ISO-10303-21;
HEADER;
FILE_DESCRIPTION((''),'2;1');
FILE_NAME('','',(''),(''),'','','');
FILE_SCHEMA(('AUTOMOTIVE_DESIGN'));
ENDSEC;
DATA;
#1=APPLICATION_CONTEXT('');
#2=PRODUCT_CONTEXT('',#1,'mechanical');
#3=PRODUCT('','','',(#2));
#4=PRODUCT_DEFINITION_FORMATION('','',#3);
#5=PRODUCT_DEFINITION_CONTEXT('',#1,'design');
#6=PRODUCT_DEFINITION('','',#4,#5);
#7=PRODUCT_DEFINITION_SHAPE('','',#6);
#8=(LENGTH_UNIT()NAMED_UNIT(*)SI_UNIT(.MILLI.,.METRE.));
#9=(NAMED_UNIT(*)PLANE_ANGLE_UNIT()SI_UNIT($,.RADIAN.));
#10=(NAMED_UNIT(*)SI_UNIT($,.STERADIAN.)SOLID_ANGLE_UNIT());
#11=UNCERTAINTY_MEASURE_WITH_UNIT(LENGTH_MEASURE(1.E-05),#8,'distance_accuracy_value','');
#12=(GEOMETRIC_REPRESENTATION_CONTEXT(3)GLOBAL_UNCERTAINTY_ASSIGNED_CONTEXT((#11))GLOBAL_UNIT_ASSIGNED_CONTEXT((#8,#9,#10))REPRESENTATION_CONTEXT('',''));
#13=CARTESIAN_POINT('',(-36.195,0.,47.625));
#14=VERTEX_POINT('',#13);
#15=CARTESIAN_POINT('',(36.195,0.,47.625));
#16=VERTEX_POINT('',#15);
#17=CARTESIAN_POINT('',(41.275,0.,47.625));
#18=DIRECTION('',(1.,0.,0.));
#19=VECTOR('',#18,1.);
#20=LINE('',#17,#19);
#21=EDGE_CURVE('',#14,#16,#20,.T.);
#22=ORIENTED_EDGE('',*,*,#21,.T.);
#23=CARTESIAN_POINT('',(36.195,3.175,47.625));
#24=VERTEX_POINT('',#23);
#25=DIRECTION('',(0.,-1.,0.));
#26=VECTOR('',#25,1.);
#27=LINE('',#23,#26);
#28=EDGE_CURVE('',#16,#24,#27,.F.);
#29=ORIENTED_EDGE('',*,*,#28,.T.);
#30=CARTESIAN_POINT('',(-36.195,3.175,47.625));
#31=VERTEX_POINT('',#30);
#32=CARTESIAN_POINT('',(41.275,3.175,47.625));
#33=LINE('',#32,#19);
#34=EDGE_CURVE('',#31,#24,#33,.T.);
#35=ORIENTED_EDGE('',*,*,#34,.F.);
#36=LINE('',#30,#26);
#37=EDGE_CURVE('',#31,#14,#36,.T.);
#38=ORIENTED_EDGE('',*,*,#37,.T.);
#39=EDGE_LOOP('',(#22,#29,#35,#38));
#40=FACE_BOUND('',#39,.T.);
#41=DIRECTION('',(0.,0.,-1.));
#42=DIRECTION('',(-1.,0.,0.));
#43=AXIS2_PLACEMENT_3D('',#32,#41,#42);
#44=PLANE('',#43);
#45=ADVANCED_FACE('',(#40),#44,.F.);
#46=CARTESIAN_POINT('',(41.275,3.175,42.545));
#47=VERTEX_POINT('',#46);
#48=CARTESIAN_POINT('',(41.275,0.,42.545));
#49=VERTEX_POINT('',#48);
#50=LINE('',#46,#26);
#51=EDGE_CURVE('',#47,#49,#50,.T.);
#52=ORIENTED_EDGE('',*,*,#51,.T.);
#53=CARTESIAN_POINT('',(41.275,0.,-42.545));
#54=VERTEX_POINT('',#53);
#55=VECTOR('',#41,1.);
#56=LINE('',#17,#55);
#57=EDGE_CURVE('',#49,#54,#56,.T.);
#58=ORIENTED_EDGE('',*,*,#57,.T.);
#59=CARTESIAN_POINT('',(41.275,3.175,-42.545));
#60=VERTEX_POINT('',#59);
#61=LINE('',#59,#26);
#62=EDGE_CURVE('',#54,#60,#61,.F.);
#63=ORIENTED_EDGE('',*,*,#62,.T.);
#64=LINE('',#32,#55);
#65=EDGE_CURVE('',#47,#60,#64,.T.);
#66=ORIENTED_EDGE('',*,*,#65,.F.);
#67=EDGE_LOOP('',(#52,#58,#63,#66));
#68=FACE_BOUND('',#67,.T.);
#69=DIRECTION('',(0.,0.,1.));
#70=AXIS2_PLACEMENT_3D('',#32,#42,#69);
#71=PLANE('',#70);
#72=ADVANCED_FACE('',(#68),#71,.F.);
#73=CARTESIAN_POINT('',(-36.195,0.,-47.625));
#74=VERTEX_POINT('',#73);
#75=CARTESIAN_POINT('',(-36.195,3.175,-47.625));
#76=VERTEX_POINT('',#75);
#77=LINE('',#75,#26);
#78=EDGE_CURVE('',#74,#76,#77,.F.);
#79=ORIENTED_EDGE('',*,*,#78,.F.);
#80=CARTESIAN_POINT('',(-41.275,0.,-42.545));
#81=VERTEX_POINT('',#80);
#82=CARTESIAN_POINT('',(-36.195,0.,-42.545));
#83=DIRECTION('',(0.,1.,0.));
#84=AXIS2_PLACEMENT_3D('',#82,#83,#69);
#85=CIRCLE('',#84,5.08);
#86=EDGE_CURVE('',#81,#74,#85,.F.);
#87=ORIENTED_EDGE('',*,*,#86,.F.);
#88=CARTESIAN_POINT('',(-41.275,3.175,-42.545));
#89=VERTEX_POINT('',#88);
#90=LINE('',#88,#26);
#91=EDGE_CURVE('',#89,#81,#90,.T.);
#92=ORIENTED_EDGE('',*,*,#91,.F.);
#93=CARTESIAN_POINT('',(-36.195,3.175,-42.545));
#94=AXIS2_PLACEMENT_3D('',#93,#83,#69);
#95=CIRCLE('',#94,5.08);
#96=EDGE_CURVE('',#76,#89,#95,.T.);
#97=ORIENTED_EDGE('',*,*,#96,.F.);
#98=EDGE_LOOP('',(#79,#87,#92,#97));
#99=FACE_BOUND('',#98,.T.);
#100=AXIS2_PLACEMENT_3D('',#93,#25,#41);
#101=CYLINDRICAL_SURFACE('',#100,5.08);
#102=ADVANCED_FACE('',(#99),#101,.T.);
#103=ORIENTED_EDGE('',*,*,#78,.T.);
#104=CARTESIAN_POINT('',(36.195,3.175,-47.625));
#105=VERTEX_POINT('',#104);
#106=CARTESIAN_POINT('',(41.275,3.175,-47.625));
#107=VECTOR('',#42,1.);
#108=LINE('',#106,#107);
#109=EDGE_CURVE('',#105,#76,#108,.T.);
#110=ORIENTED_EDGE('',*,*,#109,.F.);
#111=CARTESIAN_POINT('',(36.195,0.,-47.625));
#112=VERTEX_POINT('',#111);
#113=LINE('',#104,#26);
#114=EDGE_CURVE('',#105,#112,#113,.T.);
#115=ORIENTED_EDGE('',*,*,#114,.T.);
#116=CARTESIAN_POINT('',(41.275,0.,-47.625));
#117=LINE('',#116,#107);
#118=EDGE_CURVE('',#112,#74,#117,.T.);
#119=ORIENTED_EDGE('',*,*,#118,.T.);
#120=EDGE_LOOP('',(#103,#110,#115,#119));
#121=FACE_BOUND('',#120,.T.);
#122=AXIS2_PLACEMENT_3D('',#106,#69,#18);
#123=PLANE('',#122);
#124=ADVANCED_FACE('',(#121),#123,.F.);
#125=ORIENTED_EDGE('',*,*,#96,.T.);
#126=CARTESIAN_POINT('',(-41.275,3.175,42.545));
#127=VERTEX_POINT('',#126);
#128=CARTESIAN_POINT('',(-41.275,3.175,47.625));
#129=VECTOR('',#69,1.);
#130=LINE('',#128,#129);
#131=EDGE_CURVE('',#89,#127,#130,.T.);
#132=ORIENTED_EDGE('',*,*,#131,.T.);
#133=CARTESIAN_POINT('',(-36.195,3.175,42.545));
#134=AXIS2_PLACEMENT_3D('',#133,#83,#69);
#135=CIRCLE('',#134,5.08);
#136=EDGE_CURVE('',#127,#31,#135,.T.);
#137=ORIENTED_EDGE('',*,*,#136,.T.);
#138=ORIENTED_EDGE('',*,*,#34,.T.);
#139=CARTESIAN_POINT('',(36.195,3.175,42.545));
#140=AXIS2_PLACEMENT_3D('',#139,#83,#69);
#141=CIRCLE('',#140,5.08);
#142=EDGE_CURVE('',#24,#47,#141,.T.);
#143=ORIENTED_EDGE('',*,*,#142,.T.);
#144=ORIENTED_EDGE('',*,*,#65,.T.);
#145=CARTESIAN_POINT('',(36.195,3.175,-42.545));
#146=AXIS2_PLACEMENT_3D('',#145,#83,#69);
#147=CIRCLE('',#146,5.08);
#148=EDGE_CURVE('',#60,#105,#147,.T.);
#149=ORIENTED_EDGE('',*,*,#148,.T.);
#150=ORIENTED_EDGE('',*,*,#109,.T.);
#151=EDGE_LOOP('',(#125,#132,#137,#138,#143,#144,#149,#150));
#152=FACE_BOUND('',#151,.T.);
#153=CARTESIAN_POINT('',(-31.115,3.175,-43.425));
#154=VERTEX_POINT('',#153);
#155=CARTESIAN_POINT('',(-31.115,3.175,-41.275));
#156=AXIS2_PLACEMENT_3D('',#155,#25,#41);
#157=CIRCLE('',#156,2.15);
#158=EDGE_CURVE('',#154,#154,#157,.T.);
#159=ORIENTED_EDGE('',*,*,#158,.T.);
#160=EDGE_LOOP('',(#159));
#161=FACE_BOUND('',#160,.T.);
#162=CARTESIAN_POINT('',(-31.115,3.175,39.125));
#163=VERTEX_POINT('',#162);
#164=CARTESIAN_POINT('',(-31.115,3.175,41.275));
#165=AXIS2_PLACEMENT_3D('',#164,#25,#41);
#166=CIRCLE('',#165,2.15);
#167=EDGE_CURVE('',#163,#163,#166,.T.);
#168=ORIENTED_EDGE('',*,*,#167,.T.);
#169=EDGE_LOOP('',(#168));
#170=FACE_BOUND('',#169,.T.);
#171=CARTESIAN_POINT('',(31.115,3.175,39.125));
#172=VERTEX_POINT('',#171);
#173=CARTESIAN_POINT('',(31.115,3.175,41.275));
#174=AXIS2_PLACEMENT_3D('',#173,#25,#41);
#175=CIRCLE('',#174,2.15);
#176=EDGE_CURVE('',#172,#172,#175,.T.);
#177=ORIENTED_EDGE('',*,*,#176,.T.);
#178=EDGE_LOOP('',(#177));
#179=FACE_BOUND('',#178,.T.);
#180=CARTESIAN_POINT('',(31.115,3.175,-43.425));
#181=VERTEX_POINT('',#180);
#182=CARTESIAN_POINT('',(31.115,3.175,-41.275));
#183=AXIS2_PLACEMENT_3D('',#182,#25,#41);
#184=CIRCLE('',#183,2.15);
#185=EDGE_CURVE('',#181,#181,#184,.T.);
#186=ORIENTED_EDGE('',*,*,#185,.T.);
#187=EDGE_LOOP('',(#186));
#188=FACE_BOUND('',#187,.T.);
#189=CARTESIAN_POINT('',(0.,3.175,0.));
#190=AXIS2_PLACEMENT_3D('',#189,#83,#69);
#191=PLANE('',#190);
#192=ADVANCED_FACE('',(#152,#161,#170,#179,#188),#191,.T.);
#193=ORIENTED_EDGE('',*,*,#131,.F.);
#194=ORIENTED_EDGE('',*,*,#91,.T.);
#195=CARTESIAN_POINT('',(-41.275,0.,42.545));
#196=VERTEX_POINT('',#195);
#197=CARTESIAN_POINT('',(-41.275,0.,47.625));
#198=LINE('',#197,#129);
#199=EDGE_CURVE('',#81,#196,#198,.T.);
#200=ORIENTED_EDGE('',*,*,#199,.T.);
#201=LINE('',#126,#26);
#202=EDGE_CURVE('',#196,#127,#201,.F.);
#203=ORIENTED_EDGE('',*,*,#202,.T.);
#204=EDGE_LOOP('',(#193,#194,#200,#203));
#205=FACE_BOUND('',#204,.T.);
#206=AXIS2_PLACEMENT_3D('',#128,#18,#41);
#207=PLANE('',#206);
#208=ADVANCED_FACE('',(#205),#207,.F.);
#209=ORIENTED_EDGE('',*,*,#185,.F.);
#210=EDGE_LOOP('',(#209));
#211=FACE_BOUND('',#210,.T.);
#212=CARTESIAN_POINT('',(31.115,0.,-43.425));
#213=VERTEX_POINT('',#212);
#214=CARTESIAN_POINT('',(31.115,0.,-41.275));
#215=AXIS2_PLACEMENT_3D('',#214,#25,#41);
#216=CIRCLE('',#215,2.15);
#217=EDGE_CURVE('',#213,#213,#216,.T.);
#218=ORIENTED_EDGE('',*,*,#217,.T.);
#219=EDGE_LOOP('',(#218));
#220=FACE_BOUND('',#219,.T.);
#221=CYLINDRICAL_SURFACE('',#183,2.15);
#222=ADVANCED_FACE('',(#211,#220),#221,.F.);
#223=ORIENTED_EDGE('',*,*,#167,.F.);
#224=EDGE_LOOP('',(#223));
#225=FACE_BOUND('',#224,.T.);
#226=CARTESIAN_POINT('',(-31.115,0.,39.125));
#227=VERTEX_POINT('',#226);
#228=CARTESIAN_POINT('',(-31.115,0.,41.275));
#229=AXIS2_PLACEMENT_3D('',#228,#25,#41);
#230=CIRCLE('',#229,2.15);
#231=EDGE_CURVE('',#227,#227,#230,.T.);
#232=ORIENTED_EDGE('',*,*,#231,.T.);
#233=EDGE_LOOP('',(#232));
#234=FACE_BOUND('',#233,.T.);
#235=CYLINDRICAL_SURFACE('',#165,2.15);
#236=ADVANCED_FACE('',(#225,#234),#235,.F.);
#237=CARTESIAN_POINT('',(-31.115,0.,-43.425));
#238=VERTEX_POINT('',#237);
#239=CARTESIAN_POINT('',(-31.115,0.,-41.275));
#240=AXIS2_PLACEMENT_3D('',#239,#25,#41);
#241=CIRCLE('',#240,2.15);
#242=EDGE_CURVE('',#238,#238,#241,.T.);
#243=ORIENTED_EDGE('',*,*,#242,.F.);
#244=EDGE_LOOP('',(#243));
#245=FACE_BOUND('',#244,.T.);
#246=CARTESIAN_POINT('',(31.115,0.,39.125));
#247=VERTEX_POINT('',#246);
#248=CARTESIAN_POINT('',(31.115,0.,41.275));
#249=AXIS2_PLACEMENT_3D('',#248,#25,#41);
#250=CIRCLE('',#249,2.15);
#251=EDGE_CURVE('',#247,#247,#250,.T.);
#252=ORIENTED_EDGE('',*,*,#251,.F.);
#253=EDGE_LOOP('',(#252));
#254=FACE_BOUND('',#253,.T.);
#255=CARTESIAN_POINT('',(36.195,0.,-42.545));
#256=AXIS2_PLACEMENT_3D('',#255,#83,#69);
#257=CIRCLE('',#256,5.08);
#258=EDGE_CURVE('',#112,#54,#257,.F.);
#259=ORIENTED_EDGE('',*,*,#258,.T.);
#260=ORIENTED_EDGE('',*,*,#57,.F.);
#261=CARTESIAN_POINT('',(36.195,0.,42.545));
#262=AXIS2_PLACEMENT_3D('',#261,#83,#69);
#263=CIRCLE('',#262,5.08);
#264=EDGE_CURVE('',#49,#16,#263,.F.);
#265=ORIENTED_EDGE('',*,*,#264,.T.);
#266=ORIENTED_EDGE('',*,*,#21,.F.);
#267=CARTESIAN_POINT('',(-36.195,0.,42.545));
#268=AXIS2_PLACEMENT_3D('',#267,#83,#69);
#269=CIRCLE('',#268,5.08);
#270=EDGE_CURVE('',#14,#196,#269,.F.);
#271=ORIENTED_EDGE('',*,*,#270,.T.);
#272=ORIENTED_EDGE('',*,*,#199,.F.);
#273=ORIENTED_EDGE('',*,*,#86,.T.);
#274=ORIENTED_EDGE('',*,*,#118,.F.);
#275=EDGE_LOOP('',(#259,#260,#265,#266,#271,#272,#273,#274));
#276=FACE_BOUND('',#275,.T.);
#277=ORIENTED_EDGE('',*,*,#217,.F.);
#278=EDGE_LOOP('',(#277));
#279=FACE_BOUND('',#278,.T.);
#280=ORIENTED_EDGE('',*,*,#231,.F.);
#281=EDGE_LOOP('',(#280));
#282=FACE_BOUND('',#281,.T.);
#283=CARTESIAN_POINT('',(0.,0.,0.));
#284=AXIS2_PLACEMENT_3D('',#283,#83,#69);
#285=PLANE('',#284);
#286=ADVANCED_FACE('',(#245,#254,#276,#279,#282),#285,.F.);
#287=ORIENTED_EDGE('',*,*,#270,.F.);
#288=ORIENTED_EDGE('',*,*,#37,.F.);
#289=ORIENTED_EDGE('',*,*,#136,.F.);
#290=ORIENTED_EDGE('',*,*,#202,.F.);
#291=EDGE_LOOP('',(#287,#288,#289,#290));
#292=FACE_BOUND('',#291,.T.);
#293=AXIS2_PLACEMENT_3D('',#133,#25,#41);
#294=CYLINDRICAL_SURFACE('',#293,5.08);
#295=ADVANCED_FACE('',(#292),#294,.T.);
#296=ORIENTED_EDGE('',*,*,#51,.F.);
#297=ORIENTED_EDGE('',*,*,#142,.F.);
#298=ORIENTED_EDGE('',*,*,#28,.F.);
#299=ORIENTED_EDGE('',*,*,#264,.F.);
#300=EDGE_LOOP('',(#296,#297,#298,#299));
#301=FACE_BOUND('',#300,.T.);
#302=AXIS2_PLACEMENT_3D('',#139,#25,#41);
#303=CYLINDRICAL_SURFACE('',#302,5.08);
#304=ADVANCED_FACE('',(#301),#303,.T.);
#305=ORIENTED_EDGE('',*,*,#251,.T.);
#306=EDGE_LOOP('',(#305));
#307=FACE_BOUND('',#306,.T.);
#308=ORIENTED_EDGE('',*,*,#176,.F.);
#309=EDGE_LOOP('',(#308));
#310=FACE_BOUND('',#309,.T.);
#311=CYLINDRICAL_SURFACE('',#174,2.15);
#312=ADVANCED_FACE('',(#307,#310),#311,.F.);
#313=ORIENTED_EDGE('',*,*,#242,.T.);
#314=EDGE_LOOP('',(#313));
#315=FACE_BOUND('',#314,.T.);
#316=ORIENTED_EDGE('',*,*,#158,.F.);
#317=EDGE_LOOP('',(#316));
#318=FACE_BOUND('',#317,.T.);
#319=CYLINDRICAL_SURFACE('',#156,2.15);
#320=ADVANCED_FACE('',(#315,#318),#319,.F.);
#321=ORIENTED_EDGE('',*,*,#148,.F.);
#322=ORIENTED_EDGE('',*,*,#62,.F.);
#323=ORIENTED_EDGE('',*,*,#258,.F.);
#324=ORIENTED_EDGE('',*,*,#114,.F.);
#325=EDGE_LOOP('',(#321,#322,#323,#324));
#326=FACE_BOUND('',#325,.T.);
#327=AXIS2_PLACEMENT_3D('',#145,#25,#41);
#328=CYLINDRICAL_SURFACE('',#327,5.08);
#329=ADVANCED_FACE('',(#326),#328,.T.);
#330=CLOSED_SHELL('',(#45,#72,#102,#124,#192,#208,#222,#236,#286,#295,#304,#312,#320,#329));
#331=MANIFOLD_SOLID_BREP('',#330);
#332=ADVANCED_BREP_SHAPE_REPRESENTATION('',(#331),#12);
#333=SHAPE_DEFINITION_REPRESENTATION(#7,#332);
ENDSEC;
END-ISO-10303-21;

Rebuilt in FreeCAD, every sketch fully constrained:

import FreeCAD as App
import Part
import Sketcher
from FreeCAD import Vector
Q = App.Units.Quantity


def edges_at(feature, points):
    """Names of the edges that pass closest to the given points."""
    edges = feature.Shape.Edges
    near = lambda p: min(range(len(edges)), key=lambda i: edges[i].distToShape(Part.Vertex(*p))[0])
    return sorted({f"Edge{near(p) + 1}" for p in points})


def add_polygon(sketch, points):
    """Adds a closed chain of lines whose ends are joined by coincident constraints."""
    first, n = sketch.GeometryCount, len(points)
    for a, b in zip(points, points[1:] + points[:1]):
        sketch.addGeometry(Part.LineSegment(App.Vector(*a, 0), App.Vector(*b, 0)), False)
    for i in range(n):
        sketch.addConstraint(Sketcher.Constraint("Coincident", first + i, 2, first + (i + 1) % n, 1))

doc = App.newDocument("Part")
params = doc.addObject("Spreadsheet::Sheet", "Params")
for row, (alias, value) in enumerate([
    ("sketch1_width", "3.25 in"),
    ("sketch1_height", "3.75 in"),
    ("pad1_length", "0.125 in"),
    ("fillet_radius", "0.2 in"),
], start=1):
    params.set(f"A{row}", alias)
    params.set(f"B{row}", "=" + value)
    params.setAlias(f"B{row}", alias)

body = doc.addObject("PartDesign::Body", "Body")

sketch1 = doc.addObject("Sketcher::SketchObject", "Sketch")
body.addObject(sketch1)
sketch1.AttachmentSupport = (doc.XZ_Plane, [""])
sketch1.MapMode = "FlatFace"
add_polygon(sketch1, [(-41, -48), (-41, 48), (41, 48), (41, -48)])
sketch1.addConstraint([
    Sketcher.Constraint("Vertical", 0),
    Sketcher.Constraint("Horizontal", 1),
    Sketcher.Constraint("Vertical", 2),
    Sketcher.Constraint("Horizontal", 3),
    Sketcher.Constraint("Symmetric", 0, 2, 2, 2, -1, 1),
    Sketcher.Constraint("DistanceX", 1, 1, 1, 2, Q("3.25 in")),
    Sketcher.Constraint("DistanceY", 0, 1, 0, 2, Q("3.75 in")),
])
sketch1.setExpression("Constraints[9]", "Params.sketch1_width")
sketch1.setExpression("Constraints[10]", "Params.sketch1_height")
pad1 = doc.addObject("PartDesign::Pad", "Pad")
body.addObject(pad1)
pad1.Profile = sketch1
pad1.setExpression("Length", "Params.pad1_length")
pad1.Reversed = True

sketch2 = doc.addObject("Sketcher::SketchObject", "Sketch001")
body.addObject(sketch2)
sketch2.AttachmentSupport = (doc.XZ_Plane, [""])
sketch2.MapMode = "FlatFace"
sketch2.addGeometry([
    Part.Circle(Vector(31.1, 41.3, 0), Vector(0, 0, 1), 2.1),
    Part.Circle(Vector(31.1, -41.3, 0), Vector(0, 0, 1), 2.1),
    Part.Circle(Vector(-31.1, -41.3, 0), Vector(0, 0, 1), 2.1),
    Part.Circle(Vector(-31.1, 41.3, 0), Vector(0, 0, 1), 2.1),
], False)
sketch2.addConstraint([
    Sketcher.Constraint("Equal", 0, 1),
    Sketcher.Constraint("Equal", 1, 2),
    Sketcher.Constraint("Equal", 2, 3),
    Sketcher.Constraint("Symmetric", 0, 3, 2, 3, -1, 1),
    Sketcher.Constraint("Symmetric", 1, 3, 3, 3, -1, 1),
    Sketcher.Constraint("Symmetric", 1, 3, 2, 3, -2),
    Sketcher.Constraint("Diameter", 0, 4.3),
    Sketcher.Constraint("DistanceY", 1, 3, 0, 3, Q("3.25 in")),
    Sketcher.Constraint("DistanceX", 2, 3, 1, 3, Q("2.45 in")),
])
pocket1 = doc.addObject("PartDesign::Pocket", "Pocket")
body.addObject(pocket1)
pocket1.Profile = sketch2
pocket1.Type = "ThroughAll"
doc.recompute()

fillet = doc.addObject("PartDesign::Fillet", "Fillet")
body.addObject(fillet)
fillet.Base = (pocket1, edges_at(pocket1, [
    (-41.275, 1.587, -47.625),
    (41.275, 1.587, -47.625),
    (41.275, 1.587, 47.625),
    (-41.275, 1.587, 47.625),
]))
fillet.setExpression("Radius", "Params.fillet_radius")

doc.recompute()
